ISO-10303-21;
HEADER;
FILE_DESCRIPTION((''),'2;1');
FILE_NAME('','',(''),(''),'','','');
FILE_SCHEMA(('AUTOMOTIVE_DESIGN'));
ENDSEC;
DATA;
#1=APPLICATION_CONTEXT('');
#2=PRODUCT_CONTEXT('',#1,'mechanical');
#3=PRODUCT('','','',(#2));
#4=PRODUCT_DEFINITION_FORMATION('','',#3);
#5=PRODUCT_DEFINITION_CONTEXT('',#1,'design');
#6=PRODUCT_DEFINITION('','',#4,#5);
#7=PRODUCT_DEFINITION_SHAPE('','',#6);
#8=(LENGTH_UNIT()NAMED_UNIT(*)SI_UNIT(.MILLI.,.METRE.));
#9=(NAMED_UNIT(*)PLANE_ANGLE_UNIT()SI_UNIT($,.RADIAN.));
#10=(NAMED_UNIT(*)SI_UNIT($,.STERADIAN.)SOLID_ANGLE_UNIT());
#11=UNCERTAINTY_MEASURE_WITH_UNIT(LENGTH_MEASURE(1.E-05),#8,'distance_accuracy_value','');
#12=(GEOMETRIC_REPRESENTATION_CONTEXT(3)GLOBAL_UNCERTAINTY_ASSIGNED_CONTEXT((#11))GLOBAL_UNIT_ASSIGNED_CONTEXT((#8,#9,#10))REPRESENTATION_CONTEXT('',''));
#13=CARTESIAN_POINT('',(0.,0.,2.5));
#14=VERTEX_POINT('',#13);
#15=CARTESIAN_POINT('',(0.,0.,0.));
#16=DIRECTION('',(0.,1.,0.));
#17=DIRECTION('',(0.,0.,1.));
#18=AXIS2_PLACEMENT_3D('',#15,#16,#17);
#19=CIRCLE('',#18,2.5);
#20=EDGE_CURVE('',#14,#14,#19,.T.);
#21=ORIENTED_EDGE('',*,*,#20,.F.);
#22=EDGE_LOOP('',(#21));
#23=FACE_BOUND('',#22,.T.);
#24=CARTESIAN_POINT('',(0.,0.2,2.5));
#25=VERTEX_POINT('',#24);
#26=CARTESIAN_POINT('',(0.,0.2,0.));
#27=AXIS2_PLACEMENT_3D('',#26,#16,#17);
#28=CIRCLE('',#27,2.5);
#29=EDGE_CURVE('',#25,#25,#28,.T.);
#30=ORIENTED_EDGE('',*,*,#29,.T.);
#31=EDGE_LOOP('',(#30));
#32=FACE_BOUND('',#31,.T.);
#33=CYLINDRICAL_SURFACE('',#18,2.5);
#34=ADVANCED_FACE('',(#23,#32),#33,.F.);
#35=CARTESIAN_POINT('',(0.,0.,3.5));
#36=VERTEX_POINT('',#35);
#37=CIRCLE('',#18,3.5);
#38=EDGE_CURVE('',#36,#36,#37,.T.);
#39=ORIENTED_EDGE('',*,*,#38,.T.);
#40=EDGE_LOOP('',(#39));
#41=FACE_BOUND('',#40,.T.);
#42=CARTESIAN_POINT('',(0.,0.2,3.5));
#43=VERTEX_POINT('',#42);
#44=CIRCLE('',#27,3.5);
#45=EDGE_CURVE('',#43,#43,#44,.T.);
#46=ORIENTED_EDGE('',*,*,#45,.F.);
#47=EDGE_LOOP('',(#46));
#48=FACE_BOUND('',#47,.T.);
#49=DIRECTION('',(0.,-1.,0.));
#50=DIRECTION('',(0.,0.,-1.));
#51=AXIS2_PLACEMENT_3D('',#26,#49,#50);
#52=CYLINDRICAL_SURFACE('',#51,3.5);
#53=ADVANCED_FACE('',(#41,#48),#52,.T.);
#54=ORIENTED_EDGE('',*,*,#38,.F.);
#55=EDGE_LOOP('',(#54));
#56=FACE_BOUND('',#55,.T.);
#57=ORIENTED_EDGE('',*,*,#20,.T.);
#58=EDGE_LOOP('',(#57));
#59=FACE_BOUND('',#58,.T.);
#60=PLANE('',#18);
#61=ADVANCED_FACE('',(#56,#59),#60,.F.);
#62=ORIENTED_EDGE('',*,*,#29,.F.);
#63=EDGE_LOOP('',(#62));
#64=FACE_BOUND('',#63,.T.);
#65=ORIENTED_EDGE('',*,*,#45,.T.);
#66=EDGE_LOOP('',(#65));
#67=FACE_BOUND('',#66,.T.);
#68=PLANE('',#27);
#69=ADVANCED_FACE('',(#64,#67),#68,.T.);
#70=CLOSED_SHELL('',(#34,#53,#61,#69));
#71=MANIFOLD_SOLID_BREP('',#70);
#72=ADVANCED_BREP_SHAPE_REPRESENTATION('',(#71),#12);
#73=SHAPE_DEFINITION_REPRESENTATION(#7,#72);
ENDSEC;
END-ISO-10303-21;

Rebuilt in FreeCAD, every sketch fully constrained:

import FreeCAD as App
import Part
import Sketcher

V = App.Vector

doc = App.newDocument("Part")
body = doc.addObject("PartDesign::Body", "Body")

# Sketch on XZ plane
sketch1 = body.newObject("Sketcher::SketchObject", "Sketch")
sketch1.AttachmentSupport = (doc.getObject("XZ_Plane"), [""])
sketch1.MapMode = "FlatFace"
sketch1.addGeometry(Part.Circle(V(0, 0, 0), V(0, 0, 1), 3.5), False)
sketch1.addConstraint([
    Sketcher.Constraint("Coincident", 0, 3, -1, 1),
    Sketcher.Constraint("Diameter", 0, 7.0),
])
pad1 = body.newObject("PartDesign::Pad", "Pad")
pad1.Profile = sketch1
pad1.Length = 0.2
pad1.Reversed = True

# Sketch on XZ plane
sketch2 = body.newObject("Sketcher::SketchObject", "Sketch001")
sketch2.AttachmentSupport = (doc.getObject("XZ_Plane"), [""])
sketch2.MapMode = "FlatFace"
sketch2.AttachmentOffset = App.Placement(V(0, 0, -0.2), App.Rotation())
sketch2.addGeometry(Part.Circle(V(0, 0, 0), V(0, 0, 1), 2.5), False)
sketch2.addConstraint([
    Sketcher.Constraint("Coincident", 0, 3, -1, 1),
    Sketcher.Constraint("Diameter", 0, 5.0),
])
pocket1 = body.newObject("PartDesign::Pocket", "Pocket")
pocket1.Profile = sketch2
pocket1.Type = "ThroughAll"
pocket1.Reversed = True

doc.recompute()
